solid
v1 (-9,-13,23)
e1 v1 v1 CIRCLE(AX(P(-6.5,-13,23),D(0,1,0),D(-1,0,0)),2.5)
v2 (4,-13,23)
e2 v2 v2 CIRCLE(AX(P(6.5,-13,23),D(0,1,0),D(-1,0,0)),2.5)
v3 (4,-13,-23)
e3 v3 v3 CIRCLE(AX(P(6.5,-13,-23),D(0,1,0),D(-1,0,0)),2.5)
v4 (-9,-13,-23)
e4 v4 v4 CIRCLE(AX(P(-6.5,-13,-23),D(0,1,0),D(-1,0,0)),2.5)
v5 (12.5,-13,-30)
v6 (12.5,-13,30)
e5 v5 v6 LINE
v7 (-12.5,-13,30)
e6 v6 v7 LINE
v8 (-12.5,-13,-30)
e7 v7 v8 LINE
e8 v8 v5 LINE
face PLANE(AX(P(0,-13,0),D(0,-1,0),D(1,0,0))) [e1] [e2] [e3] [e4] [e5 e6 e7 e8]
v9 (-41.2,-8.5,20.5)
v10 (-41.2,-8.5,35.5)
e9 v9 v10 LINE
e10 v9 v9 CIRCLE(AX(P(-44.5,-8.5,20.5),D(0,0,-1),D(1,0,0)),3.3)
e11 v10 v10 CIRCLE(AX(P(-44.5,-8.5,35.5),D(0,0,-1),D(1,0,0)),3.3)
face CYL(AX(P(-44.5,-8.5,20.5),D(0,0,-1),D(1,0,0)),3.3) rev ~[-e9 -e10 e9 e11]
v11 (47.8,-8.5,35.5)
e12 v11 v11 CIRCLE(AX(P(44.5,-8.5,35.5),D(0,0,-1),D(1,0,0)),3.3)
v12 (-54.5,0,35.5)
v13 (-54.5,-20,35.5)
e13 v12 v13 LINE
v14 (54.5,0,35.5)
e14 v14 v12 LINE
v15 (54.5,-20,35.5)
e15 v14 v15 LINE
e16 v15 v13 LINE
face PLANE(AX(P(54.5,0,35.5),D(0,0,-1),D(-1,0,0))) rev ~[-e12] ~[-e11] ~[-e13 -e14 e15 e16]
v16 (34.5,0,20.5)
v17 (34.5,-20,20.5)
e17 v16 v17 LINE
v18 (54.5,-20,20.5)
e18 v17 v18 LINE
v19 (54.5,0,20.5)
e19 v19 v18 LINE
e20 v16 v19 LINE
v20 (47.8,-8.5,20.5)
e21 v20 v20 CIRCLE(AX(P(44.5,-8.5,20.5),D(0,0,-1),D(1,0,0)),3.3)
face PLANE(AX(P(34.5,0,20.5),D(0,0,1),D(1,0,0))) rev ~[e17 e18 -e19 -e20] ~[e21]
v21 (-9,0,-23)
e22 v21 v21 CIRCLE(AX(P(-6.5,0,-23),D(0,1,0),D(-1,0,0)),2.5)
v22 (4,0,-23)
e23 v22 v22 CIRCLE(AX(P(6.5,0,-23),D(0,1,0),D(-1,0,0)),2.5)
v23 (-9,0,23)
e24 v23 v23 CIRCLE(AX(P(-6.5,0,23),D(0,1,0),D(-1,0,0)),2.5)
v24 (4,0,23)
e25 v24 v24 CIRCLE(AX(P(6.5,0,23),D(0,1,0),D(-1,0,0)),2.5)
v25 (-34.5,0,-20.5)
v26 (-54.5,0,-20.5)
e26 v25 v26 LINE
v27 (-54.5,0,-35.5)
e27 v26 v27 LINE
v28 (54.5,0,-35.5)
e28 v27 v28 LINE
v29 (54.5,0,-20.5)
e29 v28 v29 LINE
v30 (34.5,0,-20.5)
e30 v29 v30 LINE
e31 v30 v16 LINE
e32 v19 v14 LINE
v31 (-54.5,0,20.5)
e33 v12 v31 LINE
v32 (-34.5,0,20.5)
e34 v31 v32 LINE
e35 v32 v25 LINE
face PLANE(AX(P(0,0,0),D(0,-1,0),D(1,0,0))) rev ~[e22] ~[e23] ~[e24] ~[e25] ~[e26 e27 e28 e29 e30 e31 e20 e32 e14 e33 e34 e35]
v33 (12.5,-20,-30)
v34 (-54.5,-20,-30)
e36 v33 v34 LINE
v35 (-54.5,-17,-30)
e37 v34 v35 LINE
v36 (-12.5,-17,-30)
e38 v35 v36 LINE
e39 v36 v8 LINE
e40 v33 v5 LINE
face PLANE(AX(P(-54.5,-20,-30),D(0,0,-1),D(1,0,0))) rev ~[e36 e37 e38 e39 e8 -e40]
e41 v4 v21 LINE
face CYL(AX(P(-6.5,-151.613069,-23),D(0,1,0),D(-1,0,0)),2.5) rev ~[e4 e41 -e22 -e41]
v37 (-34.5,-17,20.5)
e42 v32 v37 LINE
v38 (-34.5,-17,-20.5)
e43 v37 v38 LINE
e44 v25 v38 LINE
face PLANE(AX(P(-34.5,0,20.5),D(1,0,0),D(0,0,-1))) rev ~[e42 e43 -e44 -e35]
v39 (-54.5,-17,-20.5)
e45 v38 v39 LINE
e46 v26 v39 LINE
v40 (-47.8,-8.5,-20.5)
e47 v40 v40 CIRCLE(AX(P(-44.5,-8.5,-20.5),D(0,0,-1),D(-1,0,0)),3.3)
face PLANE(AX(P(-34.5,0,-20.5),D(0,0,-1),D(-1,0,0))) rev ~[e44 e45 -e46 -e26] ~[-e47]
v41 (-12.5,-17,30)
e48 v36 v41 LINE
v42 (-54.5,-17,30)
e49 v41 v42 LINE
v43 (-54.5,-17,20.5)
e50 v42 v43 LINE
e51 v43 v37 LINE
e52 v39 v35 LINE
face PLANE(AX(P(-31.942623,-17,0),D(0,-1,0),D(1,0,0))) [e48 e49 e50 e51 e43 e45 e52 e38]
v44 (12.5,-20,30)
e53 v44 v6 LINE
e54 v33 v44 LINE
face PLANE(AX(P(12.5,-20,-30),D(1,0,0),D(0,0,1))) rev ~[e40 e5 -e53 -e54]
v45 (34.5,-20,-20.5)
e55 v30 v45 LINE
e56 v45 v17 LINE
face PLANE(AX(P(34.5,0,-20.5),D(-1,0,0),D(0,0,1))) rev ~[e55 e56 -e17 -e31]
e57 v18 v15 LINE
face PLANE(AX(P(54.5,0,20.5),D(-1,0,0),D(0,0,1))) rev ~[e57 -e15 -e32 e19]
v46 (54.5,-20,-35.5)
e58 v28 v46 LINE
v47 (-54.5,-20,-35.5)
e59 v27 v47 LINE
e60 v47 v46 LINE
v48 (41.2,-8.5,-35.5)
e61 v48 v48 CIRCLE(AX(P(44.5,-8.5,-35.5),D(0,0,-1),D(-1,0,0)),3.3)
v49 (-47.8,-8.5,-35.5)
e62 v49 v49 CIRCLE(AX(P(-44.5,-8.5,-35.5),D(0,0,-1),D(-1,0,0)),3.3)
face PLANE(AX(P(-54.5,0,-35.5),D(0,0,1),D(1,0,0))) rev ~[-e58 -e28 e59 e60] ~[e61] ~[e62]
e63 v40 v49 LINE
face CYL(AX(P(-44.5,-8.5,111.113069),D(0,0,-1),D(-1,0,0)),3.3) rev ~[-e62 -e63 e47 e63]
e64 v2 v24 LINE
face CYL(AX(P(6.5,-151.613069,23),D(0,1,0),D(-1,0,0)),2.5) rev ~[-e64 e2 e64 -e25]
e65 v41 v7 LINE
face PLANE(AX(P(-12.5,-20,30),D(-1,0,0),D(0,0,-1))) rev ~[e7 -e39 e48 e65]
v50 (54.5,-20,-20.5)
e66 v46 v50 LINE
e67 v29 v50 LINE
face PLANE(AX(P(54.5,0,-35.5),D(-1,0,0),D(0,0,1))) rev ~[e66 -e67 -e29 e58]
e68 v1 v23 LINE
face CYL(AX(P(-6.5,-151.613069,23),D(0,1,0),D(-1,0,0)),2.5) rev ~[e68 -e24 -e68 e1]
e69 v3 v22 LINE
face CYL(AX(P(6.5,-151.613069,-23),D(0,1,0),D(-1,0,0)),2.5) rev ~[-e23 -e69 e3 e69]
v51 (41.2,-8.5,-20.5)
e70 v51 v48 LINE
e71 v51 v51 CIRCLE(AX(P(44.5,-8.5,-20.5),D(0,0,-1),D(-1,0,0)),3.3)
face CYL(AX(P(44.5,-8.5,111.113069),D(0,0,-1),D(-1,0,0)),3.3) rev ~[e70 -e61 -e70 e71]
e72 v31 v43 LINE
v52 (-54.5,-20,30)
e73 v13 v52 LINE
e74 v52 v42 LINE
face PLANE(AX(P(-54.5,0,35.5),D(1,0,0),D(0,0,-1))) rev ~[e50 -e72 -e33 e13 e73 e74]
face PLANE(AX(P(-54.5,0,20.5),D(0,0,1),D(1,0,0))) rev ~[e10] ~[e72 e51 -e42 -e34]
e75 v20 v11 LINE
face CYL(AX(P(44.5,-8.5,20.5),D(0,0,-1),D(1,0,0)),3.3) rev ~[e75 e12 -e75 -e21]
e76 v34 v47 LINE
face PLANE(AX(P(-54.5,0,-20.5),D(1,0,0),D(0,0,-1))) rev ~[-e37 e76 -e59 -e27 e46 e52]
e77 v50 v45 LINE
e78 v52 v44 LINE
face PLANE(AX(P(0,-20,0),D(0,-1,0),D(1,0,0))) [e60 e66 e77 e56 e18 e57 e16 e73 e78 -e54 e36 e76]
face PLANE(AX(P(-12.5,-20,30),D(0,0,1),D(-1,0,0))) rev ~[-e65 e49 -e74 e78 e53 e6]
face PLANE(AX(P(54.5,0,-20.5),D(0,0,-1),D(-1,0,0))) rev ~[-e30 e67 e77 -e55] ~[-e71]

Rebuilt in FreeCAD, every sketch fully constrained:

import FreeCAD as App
import Part
import Sketcher
from FreeCAD import Vector

doc = App.newDocument("Part")
body = doc.addObject("PartDesign::Body", "Body")

# Sketch on XZ plane
sketch1 = body.newObject("Sketcher::SketchObject", "Sketch")
sketch1.AttachmentSupport = (doc.getObject("XZ_Plane"), [""])
sketch1.MapMode = "FlatFace"
sketch1.addGeometry([
    Part.LineSegment(Vector(54, 36, 0), Vector(-54, 36, 0)),  # 0
    Part.LineSegment(Vector(-54, 36, 0), Vector(-54, 20, 0)),  # 1
    Part.LineSegment(Vector(-54, 20, 0), Vector(-34, 20, 0)),  # 2
    Part.LineSegment(Vector(-34, 20, 0), Vector(-34, -20, 0)),  # 3
    Part.LineSegment(Vector(-34, -20, 0), Vector(-54, -20, 0)),  # 4
    Part.LineSegment(Vector(-54, -20, 0), Vector(-54, -36, 0)),  # 5
    Part.LineSegment(Vector(-54, -36, 0), Vector(54, -36, 0)),  # 6
    Part.LineSegment(Vector(54, -36, 0), Vector(54, -20, 0)),  # 7
    Part.LineSegment(Vector(54, -20, 0), Vector(34, -20, 0)),  # 8
    Part.LineSegment(Vector(34, -20, 0), Vector(34, 20, 0)),  # 9
    Part.LineSegment(Vector(34, 20, 0), Vector(54, 20, 0)),  # 10
    Part.LineSegment(Vector(54, 20, 0), Vector(54, 36, 0)),  # 11
], False)
sketch1.addConstraint([
    Sketcher.Constraint("Coincident", 0, 2, 1, 1),
    Sketcher.Constraint("Coincident", 1, 2, 2, 1),
    Sketcher.Constraint("Coincident", 2, 2, 3, 1),
    Sketcher.Constraint("Coincident", 3, 2, 4, 1),
    Sketcher.Constraint("Coincident", 4, 2, 5, 1),
    Sketcher.Constraint("Coincident", 5, 2, 6, 1),
    Sketcher.Constraint("Coincident", 6, 2, 7, 1),
    Sketcher.Constraint("Coincident", 7, 2, 8, 1),
    Sketcher.Constraint("Coincident", 8, 2, 9, 1),
    Sketcher.Constraint("Coincident", 9, 2, 10, 1),
    Sketcher.Constraint("Coincident", 10, 2, 11, 1),
    Sketcher.Constraint("Coincident", 11, 2, 0, 1),
    Sketcher.Constraint("Horizontal", 0),
    Sketcher.Constraint("Vertical", 1),
    Sketcher.Constraint("Horizontal", 2),
    Sketcher.Constraint("Vertical", 3),
    Sketcher.Constraint("Horizontal", 4),
    Sketcher.Constraint("Vertical", 5),
    Sketcher.Constraint("Horizontal", 6),
    Sketcher.Constraint("Vertical", 7),
    Sketcher.Constraint("Horizontal", 8),
    Sketcher.Constraint("Vertical", 9),
    Sketcher.Constraint("Horizontal", 10),
    Sketcher.Constraint("Vertical", 11),
    Sketcher.Constraint("Symmetric", 0, 2, 6, 2, -1, 1),
    Sketcher.Constraint("Symmetric", 2, 2, 8, 2, -1, 1),
    Sketcher.Constraint("Symmetric", 4, 2, 10, 2, -1, 1),
    Sketcher.Constraint("Symmetric", 4, 2, 7, 2, -2),
    Sketcher.Constraint("DistanceX", 0, 2, 0, 1, 109.0),
    Sketcher.Constraint("DistanceX", 2, 1, 2, 2, 20.0),
    Sketcher.Constraint("DistanceY", 1, 2, 1, 1, 15.0),
    Sketcher.Constraint("DistanceY", 3, 2, 3, 1, 41.0),
])
pad1 = body.newObject("PartDesign::Pad", "Pad")
pad1.Profile = sketch1
pad1.Length = 20

# Sketch on XZ plane
sketch2 = body.newObject("Sketcher::SketchObject", "Sketch001")
sketch2.AttachmentSupport = (doc.getObject("XZ_Plane"), [""])
sketch2.MapMode = "FlatFace"
sketch2.AttachmentOffset = App.Placement(Vector(0, 0, 20), App.Rotation())
sketch2.addGeometry([
    Part.LineSegment(Vector(-12, 30, 0), Vector(-12, -30, 0)),
    Part.LineSegment(Vector(-12, -30, 0), Vector(12, -30, 0)),
    Part.LineSegment(Vector(12, -30, 0), Vector(12, 30, 0)),
    Part.LineSegment(Vector(12, 30, 0), Vector(-12, 30, 0)),
], False)
sketch2.addConstraint([
    Sketcher.Constraint("Coincident", 0, 2, 1, 1),
    Sketcher.Constraint("Coincident", 1, 2, 2, 1),
    Sketcher.Constraint("Coincident", 2, 2, 3, 1),
    Sketcher.Constraint("Coincident", 3, 2, 0, 1),
    Sketcher.Constraint("Vertical", 0),
    Sketcher.Constraint("Horizontal", 1),
    Sketcher.Constraint("Vertical", 2),
    Sketcher.Constraint("Horizontal", 3),
    Sketcher.Constraint("Symmetric", 0, 2, 2, 2, -1, 1),
    Sketcher.Constraint("DistanceX", 1, 1, 1, 2, 25.0),
    Sketcher.Constraint("DistanceY", 0, 2, 0, 1, 60.0),
])
pocket1 = body.newObject("PartDesign::Pocket", "Pocket")
pocket1.Profile = sketch2
pocket1.Length = 7

# Sketch on XZ plane
sketch3 = body.newObject("Sketcher::SketchObject", "Sketch002")
sketch3.AttachmentSupport = (doc.getObject("XZ_Plane"), [""])
sketch3.MapMode = "FlatFace"
sketch3.AttachmentOffset = App.Placement(Vector(0, 0, 20), App.Rotation())
sketch3.addGeometry([
    Part.LineSegment(Vector(-12, 30, 0), Vector(-54, 30, 0)),  # 0
    Part.LineSegment(Vector(-54, 30, 0), Vector(-54, 20, 0)),  # 1
    Part.LineSegment(Vector(-54, 20, 0), Vector(-34, 20, 0)),  # 2
    Part.LineSegment(Vector(-34, 20, 0), Vector(-34, -20, 0)),  # 3
    Part.LineSegment(Vector(-34, -20, 0), Vector(-54, -20, 0)),  # 4
    Part.LineSegment(Vector(-54, -20, 0), Vector(-54, -30, 0)),  # 5
    Part.LineSegment(Vector(-54, -30, 0), Vector(-12, -30, 0)),  # 6
    Part.LineSegment(Vector(-12, -30, 0), Vector(-12, 30, 0)),  # 7
], False)
sketch3.addConstraint([
    Sketcher.Constraint("Coincident", 0, 2, 1, 1),
    Sketcher.Constraint("Coincident", 1, 2, 2, 1),
    Sketcher.Constraint("Coincident", 2, 2, 3, 1),
    Sketcher.Constraint("Coincident", 3, 2, 4, 1),
    Sketcher.Constraint("Coincident", 4, 2, 5, 1),
    Sketcher.Constraint("Coincident", 5, 2, 6, 1),
    Sketcher.Constraint("Coincident", 6, 2, 7, 1),
    Sketcher.Constraint("Coincident", 7, 2, 0, 1),
    Sketcher.Constraint("Horizontal", 0),
    Sketcher.Constraint("Vertical", 1),
    Sketcher.Constraint("Horizontal", 2),
    Sketcher.Constraint("Vertical", 3),
    Sketcher.Constraint("Horizontal", 4),
    Sketcher.Constraint("Vertical", 5),
    Sketcher.Constraint("Horizontal", 6),
    Sketcher.Constraint("Vertical", 7),
    Sketcher.Constraint("Symmetric", 1, 2, 4, 2, -1),
    Sketcher.Constraint("Equal", 1, 5),
    Sketcher.Constraint("DistanceX", 0, 2, 0, 1, 42.0),
    Sketcher.Constraint("DistanceX", 2, 1, 2, 2, 20.0),
    Sketcher.Constraint("DistanceY", 3, 2, 3, 1, 41.0),
    Sketcher.Constraint("DistanceY", 7, 1, 7, 2, 60.0),
    Sketcher.Constraint("DistanceX", 0, 2, -1, 1, 54.5),
])
pocket2 = body.newObject("PartDesign::Pocket", "Pocket001")
pocket2.Profile = sketch3
pocket2.Length = 3

# Sketch on XY plane
sketch4 = body.newObject("Sketcher::SketchObject", "Sketch003")
sketch4.AttachmentSupport = (doc.getObject("XY_Plane"), [""])
sketch4.MapMode = "FlatFace"
sketch4.AttachmentOffset = App.Placement(Vector(0, 0, 20.5), App.Rotation())
sketch4.addGeometry([
    Part.Circle(Vector(44.5, -8.5, 0), Vector(0, 0, 1), 3.3),
    Part.Circle(Vector(-44.5, -8.5, 0), Vector(0, 0, 1), 3.3),
], False)
sketch4.addConstraint([
    Sketcher.Constraint("Equal", 0, 1),
    Sketcher.Constraint("Symmetric", 0, 3, 1, 3, -2),
    Sketcher.Constraint("Diameter", 0, 6.6),
    Sketcher.Constraint("DistanceX", 1, 3, 0, 3, 89.0),
    Sketcher.Constraint("DistanceY", 0, 3, -1, 1, 8.5),
])
pocket3 = body.newObject("PartDesign::Pocket", "Pocket002")
pocket3.Profile = sketch4
pocket3.Type = "ThroughAll"
pocket3.Reversed = True

# Sketch on XY plane
sketch5 = body.newObject("Sketcher::SketchObject", "Sketch004")
sketch5.AttachmentSupport = (doc.getObject("XY_Plane"), [""])
sketch5.MapMode = "FlatFace"
sketch5.AttachmentOffset = App.Placement(Vector(0, 0, -20.5), App.Rotation())
sketch5.addGeometry([
    Part.Circle(Vector(-44.5, -8.5, 0), Vector(0, 0, 1), 3.3),
    Part.Circle(Vector(44.5, -8.5, 0), Vector(0, 0, 1), 3.3),
], False)
sketch5.addConstraint([
    Sketcher.Constraint("Equal", 0, 1),
    Sketcher.Constraint("Symmetric", 0, 3, 1, 3, -2),
    Sketcher.Constraint("Diameter", 0, 6.6),
    Sketcher.Constraint("DistanceX", 0, 3, 1, 3, 89.0),
    Sketcher.Constraint("DistanceY", 0, 3, -1, 1, 8.5),
])
doc.recompute()
hole = body.newObject("PartDesign::Hole", "Hole")
hole.Profile = sketch5
hole.ThreadType = "None"
hole.Diameter = 6.6
hole.DepthType = "ThroughAll"

# Sketch on XZ plane
sketch6 = body.newObject("Sketcher::SketchObject", "Sketch005")
sketch6.AttachmentSupport = (doc.getObject("XZ_Plane"), [""])
sketch6.MapMode = "FlatFace"
sketch6.AttachmentOffset = App.Placement(Vector(0, 0, 20), App.Rotation())
sketch6.addGeometry([
    Part.Circle(Vector(-6.5, 23, 0), Vector(0, 0, 1), 2.5),
    Part.Circle(Vector(-6.5, -23, 0), Vector(0, 0, 1), 2.5),
    Part.Circle(Vector(6.5, -23, 0), Vector(0, 0, 1), 2.5),
    Part.Circle(Vector(6.5, 23, 0), Vector(0, 0, 1), 2.5),
], False)
sketch6.addConstraint([
    Sketcher.Constraint("Equal", 0, 1),
    Sketcher.Constraint("Equal", 1, 2),
    Sketcher.Constraint("Equal", 2, 3),
    Sketcher.Constraint("Symmetric", 0, 3, 2, 3, -1, 1),
    Sketcher.Constraint("Symmetric", 1, 3, 3, 3, -1, 1),
    Sketcher.Constraint("Symmetric", 1, 3, 2, 3, -2),
    Sketcher.Constraint("Diameter", 0, 5.0),
    Sketcher.Constraint("DistanceY", -1, 1, 0, 3, 23.0),
    Sketcher.Constraint("DistanceX", 1, 3, 2, 3, 13.0),
])
doc.recompute()
hole2 = body.newObject("PartDesign::Hole", "Hole001")
hole2.Profile = sketch6
hole2.ThreadType = "None"
hole2.Diameter = 5
hole2.DepthType = "ThroughAll"

doc.recompute()
